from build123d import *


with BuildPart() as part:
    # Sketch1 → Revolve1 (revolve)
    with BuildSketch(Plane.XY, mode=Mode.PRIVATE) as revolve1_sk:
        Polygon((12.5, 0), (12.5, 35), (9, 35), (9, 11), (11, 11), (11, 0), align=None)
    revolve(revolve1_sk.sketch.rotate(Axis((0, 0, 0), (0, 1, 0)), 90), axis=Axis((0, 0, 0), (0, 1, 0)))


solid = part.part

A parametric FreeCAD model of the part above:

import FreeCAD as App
import Part
import Sketcher

doc = App.newDocument("Part")
body = doc.addObject("PartDesign::Body", "Body")

# Sketch on XY plane
sketch1 = body.newObject("Sketcher::SketchObject", "Sketch")
sketch1.AttachmentSupport = (doc.getObject("XY_Plane"), [""])
sketch1.MapMode = "FlatFace"
sketch1.addGeometry([
    Part.LineSegment(App.Vector(12.5, 0, 0), App.Vector(12.5, 35, 0)),  # 0
    Part.LineSegment(App.Vector(12.5, 35, 0), App.Vector(9, 35, 0)),  # 1
    Part.LineSegment(App.Vector(9, 35, 0), App.Vector(9, 11, 0)),  # 2
    Part.LineSegment(App.Vector(9, 11, 0), App.Vector(11, 11, 0)),  # 3
    Part.LineSegment(App.Vector(11, 11, 0), App.Vector(11, 0, 0)),  # 4
    Part.LineSegment(App.Vector(11, 0, 0), App.Vector(12.5, 0, 0)),  # 5
], False)
sketch1.addConstraint([
    Sketcher.Constraint("Coincident", 0, 2, 1, 1),
    Sketcher.Constraint("Coincident", 1, 2, 2, 1),
    Sketcher.Constraint("Coincident", 2, 2, 3, 1),
    Sketcher.Constraint("Coincident", 3, 2, 4, 1),
    Sketcher.Constraint("Coincident", 4, 2, 5, 1),
    Sketcher.Constraint("Coincident", 5, 2, 0, 1),
    Sketcher.Constraint("Vertical", 0),
    Sketcher.Constraint("Horizontal", 1),
    Sketcher.Constraint("Vertical", 2),
    Sketcher.Constraint("Horizontal", 3),
    Sketcher.Constraint("Vertical", 4),
    Sketcher.Constraint("Horizontal", 5),
    Sketcher.Constraint("PointOnObject", 4, 2, -1),
    Sketcher.Constraint("DistanceX", 3, 1, 3, 2, 2.0),
    Sketcher.Constraint("DistanceY", 0, 1, 0, 2, 35.0),
    Sketcher.Constraint("DistanceY", 2, 2, 2, 1, 24.0),
    Sketcher.Constraint("DistanceX", 1, 2, 1, 1, 3.5),
    Sketcher.Constraint("DistanceX", -1, 1, 1, 2, 9.0),
])
revolution = body.newObject("PartDesign::Revolution", "Revolution")
revolution.Profile = sketch1
revolution.ReferenceAxis = (sketch1, ["V_Axis"])
revolution.Angle = 360

doc.recompute()
